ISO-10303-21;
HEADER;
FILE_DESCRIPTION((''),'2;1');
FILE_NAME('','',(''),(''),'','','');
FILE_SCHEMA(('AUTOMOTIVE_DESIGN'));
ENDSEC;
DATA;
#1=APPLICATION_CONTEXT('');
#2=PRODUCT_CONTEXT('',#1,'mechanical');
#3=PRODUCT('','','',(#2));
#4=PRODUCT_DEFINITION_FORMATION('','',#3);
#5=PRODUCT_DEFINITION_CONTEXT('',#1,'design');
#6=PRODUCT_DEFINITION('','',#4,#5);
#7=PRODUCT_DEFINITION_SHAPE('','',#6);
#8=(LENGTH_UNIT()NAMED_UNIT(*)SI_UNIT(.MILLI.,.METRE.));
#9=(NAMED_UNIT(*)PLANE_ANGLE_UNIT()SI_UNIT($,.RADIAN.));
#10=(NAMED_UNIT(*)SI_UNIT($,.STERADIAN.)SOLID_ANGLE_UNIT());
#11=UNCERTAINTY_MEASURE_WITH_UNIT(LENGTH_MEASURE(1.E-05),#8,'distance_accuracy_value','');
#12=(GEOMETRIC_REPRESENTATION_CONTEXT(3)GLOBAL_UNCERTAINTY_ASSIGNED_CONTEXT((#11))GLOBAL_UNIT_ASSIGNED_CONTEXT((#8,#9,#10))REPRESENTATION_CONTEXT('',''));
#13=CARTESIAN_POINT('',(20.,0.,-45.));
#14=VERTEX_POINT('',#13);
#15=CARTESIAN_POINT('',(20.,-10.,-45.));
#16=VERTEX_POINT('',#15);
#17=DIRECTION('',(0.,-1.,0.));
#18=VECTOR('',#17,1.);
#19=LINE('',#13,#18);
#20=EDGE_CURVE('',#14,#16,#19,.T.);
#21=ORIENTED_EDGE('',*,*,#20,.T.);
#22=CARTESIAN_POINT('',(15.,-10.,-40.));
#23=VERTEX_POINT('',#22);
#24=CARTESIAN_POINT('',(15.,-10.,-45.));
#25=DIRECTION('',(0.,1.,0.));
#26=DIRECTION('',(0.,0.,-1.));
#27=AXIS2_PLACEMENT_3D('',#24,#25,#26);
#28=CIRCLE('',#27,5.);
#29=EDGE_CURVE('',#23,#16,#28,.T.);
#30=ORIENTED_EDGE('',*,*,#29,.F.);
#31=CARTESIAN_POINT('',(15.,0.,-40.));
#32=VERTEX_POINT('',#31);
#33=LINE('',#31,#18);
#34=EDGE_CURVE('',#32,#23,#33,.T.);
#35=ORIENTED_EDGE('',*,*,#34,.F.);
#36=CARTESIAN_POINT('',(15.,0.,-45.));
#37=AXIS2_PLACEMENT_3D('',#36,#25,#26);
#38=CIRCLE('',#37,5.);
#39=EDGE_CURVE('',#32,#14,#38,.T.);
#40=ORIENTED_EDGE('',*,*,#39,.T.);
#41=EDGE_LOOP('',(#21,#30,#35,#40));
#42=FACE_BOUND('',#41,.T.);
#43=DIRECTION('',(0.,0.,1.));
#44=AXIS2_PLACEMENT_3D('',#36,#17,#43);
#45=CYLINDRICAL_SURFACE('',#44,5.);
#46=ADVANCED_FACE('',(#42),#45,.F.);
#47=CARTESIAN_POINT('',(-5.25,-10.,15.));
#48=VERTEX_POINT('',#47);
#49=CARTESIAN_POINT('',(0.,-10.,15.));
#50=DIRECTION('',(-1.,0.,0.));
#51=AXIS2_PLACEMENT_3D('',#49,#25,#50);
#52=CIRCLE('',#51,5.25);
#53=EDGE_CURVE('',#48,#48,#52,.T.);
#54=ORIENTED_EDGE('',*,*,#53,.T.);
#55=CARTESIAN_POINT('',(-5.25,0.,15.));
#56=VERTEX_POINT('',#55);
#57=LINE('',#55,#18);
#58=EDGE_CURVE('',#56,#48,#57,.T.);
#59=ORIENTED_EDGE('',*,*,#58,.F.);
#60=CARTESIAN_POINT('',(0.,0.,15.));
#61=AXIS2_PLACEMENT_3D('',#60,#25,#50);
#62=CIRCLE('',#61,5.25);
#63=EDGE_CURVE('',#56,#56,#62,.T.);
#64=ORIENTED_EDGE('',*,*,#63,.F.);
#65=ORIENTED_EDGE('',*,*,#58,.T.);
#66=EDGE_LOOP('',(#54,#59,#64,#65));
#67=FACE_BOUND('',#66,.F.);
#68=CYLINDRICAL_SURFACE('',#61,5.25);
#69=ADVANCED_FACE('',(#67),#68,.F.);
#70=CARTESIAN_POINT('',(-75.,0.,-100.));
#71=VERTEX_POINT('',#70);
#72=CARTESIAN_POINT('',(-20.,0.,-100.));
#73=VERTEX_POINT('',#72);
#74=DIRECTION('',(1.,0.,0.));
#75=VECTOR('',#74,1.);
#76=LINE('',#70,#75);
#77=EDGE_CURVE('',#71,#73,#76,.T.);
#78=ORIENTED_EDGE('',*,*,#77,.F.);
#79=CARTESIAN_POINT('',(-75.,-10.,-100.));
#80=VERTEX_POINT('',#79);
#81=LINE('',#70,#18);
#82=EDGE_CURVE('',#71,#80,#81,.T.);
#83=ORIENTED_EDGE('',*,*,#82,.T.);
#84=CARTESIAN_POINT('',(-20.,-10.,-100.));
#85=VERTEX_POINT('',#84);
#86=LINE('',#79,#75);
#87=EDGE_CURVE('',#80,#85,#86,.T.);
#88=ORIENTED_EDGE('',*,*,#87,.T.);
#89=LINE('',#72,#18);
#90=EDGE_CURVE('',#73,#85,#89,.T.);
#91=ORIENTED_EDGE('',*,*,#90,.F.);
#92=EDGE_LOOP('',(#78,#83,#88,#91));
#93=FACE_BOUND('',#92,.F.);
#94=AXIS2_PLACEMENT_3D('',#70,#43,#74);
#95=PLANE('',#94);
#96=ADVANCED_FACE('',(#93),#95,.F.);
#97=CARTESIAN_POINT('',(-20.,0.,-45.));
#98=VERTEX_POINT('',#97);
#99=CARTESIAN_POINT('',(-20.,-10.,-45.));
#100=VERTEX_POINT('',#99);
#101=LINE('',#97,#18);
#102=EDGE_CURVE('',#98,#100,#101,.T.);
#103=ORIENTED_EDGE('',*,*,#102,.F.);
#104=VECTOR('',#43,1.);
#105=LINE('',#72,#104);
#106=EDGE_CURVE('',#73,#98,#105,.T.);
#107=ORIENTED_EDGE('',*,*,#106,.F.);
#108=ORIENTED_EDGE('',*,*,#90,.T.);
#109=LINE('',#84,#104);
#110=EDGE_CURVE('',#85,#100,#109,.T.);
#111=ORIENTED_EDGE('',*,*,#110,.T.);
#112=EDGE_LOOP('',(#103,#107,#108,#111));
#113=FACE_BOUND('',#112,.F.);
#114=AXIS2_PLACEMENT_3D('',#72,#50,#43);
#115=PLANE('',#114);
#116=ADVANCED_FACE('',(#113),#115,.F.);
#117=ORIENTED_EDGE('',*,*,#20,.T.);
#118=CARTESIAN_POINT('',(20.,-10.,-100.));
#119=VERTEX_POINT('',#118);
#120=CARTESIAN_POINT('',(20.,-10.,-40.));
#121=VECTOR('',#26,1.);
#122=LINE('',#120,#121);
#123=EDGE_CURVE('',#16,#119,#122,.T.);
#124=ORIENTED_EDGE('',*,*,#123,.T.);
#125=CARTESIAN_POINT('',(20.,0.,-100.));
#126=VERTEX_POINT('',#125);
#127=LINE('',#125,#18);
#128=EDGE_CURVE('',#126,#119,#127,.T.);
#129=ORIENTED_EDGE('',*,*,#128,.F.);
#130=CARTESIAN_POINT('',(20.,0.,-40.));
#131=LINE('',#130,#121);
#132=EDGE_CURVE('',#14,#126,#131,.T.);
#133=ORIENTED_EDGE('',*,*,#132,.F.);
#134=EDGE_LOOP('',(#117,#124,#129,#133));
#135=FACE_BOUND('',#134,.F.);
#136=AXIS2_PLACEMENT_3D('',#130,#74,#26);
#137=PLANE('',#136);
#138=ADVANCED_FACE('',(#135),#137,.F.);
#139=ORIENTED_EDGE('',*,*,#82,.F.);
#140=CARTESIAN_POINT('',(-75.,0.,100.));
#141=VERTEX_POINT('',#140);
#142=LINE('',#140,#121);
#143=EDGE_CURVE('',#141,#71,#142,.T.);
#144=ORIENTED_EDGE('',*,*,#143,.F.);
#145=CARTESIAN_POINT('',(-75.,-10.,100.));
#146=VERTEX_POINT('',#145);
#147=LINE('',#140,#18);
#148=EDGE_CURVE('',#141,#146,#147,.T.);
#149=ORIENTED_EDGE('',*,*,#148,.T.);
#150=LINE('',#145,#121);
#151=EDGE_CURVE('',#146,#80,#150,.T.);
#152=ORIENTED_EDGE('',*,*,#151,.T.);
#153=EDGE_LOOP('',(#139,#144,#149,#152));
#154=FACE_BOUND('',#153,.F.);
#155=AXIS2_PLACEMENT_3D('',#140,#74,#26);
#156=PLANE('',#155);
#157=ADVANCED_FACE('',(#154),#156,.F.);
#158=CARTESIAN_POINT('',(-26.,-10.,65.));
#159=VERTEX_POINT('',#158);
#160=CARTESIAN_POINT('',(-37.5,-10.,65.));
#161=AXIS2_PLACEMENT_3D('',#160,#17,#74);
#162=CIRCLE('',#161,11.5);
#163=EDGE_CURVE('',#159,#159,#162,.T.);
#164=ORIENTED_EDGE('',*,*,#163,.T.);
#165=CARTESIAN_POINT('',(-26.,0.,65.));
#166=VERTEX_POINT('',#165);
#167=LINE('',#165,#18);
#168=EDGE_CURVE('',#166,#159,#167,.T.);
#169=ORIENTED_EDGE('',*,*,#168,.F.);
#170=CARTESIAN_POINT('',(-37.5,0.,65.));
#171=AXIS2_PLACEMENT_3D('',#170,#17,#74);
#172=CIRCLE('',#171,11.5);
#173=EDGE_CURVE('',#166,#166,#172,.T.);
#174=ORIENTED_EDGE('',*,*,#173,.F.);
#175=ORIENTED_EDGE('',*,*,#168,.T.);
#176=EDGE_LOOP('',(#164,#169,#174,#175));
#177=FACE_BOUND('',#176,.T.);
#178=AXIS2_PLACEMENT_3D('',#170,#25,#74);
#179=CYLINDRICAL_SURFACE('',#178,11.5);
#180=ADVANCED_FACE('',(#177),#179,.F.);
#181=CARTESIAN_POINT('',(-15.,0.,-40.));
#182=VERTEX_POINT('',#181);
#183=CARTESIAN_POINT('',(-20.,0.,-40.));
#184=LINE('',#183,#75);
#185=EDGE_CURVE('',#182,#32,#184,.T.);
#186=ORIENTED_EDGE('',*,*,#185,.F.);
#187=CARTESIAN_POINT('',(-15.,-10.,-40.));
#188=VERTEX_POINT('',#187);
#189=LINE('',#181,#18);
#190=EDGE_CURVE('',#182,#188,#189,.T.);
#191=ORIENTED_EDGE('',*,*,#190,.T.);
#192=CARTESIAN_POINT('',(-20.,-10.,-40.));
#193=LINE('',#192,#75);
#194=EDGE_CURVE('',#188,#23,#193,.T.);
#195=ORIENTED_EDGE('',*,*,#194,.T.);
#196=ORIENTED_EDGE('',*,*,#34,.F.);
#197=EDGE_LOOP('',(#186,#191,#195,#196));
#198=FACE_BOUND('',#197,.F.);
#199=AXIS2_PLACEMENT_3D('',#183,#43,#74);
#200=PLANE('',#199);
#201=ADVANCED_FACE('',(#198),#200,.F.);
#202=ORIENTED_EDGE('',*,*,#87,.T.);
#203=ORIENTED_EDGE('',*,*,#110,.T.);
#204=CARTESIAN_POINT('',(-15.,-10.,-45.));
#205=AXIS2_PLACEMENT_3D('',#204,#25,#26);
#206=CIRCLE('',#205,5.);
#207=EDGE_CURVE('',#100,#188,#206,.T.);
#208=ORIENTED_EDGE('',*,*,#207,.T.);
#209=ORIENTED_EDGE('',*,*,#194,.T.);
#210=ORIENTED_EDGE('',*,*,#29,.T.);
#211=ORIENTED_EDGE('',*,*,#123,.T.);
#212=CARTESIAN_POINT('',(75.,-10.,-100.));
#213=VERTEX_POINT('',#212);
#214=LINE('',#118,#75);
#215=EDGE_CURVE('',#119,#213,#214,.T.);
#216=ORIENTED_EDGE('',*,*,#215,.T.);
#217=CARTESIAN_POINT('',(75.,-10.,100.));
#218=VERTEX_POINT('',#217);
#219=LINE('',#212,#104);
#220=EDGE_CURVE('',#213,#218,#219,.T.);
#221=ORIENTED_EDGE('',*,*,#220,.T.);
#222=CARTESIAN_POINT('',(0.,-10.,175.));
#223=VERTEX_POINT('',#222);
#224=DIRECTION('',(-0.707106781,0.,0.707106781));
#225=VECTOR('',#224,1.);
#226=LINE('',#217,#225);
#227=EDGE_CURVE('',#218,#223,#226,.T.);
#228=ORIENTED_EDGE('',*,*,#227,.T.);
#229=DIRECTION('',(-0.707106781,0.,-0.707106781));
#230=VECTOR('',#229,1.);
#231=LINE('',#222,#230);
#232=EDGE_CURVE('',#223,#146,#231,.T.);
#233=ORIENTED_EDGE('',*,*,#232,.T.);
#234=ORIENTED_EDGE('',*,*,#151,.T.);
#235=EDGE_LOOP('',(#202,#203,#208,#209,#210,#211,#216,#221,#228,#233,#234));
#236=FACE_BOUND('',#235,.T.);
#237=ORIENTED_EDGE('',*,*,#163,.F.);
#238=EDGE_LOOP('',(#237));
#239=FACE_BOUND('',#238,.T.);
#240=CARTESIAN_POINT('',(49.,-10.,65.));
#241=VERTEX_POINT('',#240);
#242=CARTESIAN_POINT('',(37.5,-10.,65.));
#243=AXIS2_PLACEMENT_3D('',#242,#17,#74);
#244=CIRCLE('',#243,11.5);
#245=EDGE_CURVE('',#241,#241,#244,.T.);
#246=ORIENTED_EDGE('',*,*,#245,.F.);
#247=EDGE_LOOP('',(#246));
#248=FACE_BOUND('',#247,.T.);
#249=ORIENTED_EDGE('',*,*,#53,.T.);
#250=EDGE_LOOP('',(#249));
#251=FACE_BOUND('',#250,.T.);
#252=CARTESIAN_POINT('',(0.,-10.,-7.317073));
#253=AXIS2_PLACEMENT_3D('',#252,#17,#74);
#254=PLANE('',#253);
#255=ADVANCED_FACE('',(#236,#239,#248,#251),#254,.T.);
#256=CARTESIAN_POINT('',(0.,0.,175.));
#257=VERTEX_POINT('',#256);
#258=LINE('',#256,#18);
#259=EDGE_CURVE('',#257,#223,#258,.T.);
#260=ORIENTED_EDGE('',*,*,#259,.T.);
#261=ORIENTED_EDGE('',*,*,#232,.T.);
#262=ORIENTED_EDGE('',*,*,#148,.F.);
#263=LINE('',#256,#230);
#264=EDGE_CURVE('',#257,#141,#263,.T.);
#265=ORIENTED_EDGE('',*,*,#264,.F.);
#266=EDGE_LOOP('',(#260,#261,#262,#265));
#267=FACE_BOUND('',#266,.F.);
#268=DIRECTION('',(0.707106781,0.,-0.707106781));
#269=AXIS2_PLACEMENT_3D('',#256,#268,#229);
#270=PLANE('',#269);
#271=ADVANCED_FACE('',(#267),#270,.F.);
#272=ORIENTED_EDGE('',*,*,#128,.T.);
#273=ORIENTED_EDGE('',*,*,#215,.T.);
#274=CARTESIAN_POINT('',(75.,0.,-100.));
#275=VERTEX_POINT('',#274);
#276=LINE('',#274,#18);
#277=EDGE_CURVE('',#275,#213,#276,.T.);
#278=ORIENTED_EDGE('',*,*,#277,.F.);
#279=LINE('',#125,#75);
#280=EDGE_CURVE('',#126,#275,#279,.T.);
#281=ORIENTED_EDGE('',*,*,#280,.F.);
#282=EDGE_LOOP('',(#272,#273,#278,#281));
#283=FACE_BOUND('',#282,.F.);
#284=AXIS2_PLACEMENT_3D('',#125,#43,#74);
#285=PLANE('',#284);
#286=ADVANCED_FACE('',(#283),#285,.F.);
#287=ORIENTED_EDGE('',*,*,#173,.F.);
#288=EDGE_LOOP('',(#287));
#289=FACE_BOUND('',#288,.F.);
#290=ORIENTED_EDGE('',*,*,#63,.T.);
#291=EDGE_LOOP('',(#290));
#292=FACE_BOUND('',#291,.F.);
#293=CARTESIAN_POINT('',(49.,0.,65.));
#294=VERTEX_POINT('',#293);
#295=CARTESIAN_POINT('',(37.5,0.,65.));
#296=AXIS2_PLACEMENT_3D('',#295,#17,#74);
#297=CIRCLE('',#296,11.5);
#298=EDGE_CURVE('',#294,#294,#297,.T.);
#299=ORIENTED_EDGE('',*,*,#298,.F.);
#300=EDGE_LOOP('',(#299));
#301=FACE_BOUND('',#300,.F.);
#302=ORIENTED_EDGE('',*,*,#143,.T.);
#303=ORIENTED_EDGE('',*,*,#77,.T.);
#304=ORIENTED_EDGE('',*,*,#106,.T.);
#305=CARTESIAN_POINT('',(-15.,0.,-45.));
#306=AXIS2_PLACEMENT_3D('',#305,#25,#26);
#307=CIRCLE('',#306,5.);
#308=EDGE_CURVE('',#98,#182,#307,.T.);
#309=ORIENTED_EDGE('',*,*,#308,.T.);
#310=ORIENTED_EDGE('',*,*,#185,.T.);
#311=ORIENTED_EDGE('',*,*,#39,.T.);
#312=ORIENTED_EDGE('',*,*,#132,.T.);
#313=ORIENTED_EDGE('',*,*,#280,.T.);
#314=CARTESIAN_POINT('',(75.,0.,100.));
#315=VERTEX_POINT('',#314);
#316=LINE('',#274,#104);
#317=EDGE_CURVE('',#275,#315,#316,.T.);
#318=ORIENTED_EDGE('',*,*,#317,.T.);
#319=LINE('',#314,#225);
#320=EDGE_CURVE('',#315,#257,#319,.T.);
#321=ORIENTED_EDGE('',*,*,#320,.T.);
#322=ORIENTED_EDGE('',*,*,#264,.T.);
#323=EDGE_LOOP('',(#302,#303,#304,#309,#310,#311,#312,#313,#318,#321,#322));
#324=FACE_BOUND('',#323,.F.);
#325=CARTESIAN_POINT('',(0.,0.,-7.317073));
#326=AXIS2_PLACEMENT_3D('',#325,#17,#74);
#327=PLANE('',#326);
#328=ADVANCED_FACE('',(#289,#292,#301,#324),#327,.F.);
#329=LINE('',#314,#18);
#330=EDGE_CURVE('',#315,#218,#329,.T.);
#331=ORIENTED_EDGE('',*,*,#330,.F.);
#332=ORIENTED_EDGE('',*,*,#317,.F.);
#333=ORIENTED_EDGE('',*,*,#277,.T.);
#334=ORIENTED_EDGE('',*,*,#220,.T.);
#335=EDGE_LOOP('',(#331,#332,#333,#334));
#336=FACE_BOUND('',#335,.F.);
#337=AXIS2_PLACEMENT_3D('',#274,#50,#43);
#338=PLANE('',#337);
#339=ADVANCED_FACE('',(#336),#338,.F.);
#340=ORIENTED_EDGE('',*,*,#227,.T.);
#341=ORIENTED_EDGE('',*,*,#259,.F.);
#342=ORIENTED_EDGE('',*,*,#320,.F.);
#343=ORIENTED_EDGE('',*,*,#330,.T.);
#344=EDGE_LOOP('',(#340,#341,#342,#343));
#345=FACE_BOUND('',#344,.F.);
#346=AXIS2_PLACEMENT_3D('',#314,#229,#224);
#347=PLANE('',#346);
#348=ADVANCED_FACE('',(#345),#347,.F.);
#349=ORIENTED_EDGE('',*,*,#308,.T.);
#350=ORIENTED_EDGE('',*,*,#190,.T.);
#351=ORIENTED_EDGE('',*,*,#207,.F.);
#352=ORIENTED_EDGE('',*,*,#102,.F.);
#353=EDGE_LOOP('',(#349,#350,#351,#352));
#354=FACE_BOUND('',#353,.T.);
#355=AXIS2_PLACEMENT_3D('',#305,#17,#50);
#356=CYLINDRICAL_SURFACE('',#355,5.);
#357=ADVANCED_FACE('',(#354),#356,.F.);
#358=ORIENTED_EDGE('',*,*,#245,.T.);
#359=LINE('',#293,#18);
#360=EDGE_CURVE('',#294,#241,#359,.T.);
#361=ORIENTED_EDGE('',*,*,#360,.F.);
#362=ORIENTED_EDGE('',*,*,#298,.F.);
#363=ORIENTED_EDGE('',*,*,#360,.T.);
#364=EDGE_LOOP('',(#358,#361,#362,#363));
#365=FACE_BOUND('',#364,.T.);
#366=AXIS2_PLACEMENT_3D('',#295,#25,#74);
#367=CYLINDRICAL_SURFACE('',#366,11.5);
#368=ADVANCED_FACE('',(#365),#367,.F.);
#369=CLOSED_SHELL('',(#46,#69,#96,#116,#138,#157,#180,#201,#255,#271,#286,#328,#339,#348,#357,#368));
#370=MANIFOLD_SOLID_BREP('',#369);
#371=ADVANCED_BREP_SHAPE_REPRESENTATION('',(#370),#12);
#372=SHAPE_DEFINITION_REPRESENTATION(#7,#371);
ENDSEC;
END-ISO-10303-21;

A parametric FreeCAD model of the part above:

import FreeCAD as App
import Part
import Sketcher
Q = App.Units.Quantity


def edges_at(feature, points):
    """Names of the edges that pass closest to the given points."""
    edges = feature.Shape.Edges
    near = lambda p: min(range(len(edges)), key=lambda i: edges[i].distToShape(Part.Vertex(*p))[0])
    return sorted({f"Edge{near(p) + 1}" for p in points})

doc = App.newDocument("Part")
params = doc.addObject("Spreadsheet::Sheet", "Params")
for row, (alias, value) in enumerate([
    ("sketch1_diameter", "23 mm"),
    ("sketch1_width", "55 mm"),
    ("sketch1_width2", "40 mm"),
    ("sketch1_height", "200 mm"),
    ("sketch1_height2", "60 mm"),
    ("pad1_length", "10 mm"),
    ("fillet_radius", "5 mm"),
    ("sketch2_diameter", "10.5 mm"),
], start=1):
    params.set(f"A{row}", alias)
    params.set(f"B{row}", "=" + value)
    params.setAlias(f"B{row}", alias)

body = doc.addObject("PartDesign::Body", "Body")

# Sketch on XZ plane
sketch1 = doc.addObject("Sketcher::SketchObject", "Sketch")
body.addObject(sketch1)
sketch1.AttachmentSupport = (doc.XZ_Plane, [""])
sketch1.MapMode = "FlatFace"
sketch1.addGeometry(Part.LineSegment(App.Vector(75, -100, 0), App.Vector(75, 100, 0)), False)
sketch1.addGeometry(Part.LineSegment(App.Vector(75, 100, 0), App.Vector(0, 175, 0)), False)
sketch1.addGeometry(Part.LineSegment(App.Vector(0, 175, 0), App.Vector(-75, 100, 0)), False)
sketch1.addGeometry(Part.LineSegment(App.Vector(-75, 100, 0), App.Vector(-75, -100, 0)), False)
sketch1.addGeometry(Part.LineSegment(App.Vector(-75, -100, 0), App.Vector(-20, -100, 0)), False)
sketch1.addGeometry(Part.LineSegment(App.Vector(-20, -100, 0), App.Vector(-20, -40, 0)), False)
sketch1.addGeometry(Part.LineSegment(App.Vector(-20, -40, 0), App.Vector(20, -40, 0)), False)
sketch1.addGeometry(Part.LineSegment(App.Vector(20, -40, 0), App.Vector(20, -100, 0)), False)
sketch1.addGeometry(Part.LineSegment(App.Vector(20, -100, 0), App.Vector(75, -100, 0)), False)
sketch1.addGeometry(Part.Circle(App.Vector(-38, 65, 0), App.Vector(0, 0, 1), 12), False)
sketch1.addGeometry(Part.Circle(App.Vector(38, 65, 0), App.Vector(0, 0, 1), 12), False)
sketch1.addConstraint(Sketcher.Constraint("Coincident", 0, 2, 1, 1))
sketch1.addConstraint(Sketcher.Constraint("Coincident", 1, 2, 2, 1))
sketch1.addConstraint(Sketcher.Constraint("Coincident", 2, 2, 3, 1))
sketch1.addConstraint(Sketcher.Constraint("Coincident", 3, 2, 4, 1))
sketch1.addConstraint(Sketcher.Constraint("Coincident", 4, 2, 5, 1))
sketch1.addConstraint(Sketcher.Constraint("Coincident", 5, 2, 6, 1))
sketch1.addConstraint(Sketcher.Constraint("Coincident", 6, 2, 7, 1))
sketch1.addConstraint(Sketcher.Constraint("Coincident", 7, 2, 8, 1))
sketch1.addConstraint(Sketcher.Constraint("Coincident", 8, 2, 0, 1))
sketch1.addConstraint(Sketcher.Constraint("Vertical", 0))
sketch1.addConstraint(Sketcher.Constraint("Vertical", 3))
sketch1.addConstraint(Sketcher.Constraint("Horizontal", 4))
sketch1.addConstraint(Sketcher.Constraint("Vertical", 5))
sketch1.addConstraint(Sketcher.Constraint("Horizontal", 6))
sketch1.addConstraint(Sketcher.Constraint("Vertical", 7))
sketch1.addConstraint(Sketcher.Constraint("Horizontal", 8))
sketch1.addConstraint(Sketcher.Constraint("Equal", 9, 10))
sketch1.addConstraint(Sketcher.Constraint("Symmetric", 0, 2, 3, 2, -1, 1))
sketch1.addConstraint(Sketcher.Constraint("Symmetric", 9, 3, 10, 3, -2))
sketch1.addConstraint(Sketcher.Constraint("Symmetric", 4, 2, 7, 2, -2))
sketch1.addConstraint(Sketcher.Constraint("PointOnObject", 1, 2, -2))
sketch1.addConstraint(Sketcher.Constraint("Perpendicular", 1, 2))
sketch1.addConstraint(Sketcher.Constraint("Horizontal", 0, 2, 2, 2))
sketch1.addConstraint(Sketcher.Constraint("Diameter", 9, Q("23 mm")))
sketch1.addConstraint(Sketcher.Constraint("DistanceX", 4, 1, 4, 2, Q("55 mm")))
sketch1.addConstraint(Sketcher.Constraint("DistanceX", 6, 1, 6, 2, Q("40 mm")))
sketch1.addConstraint(Sketcher.Constraint("DistanceY", 0, 1, 0, 2, Q("200 mm")))
sketch1.addConstraint(Sketcher.Constraint("DistanceY", 5, 1, 5, 2, Q("60 mm")))
sketch1.addConstraint(Sketcher.Constraint("DistanceY", -1, 1, 9, 3, Q("65 mm")))
sketch1.addConstraint(Sketcher.Constraint("DistanceX", 9, 3, 10, 3, Q("75 mm")))
sketch1.setExpression("Constraints[23]", "Params.sketch1_diameter")
sketch1.setExpression("Constraints[24]", "Params.sketch1_width")
sketch1.setExpression("Constraints[25]", "Params.sketch1_width2")
sketch1.setExpression("Constraints[26]", "Params.sketch1_height")
sketch1.setExpression("Constraints[27]", "Params.sketch1_height2")
pad1 = doc.addObject("PartDesign::Pad", "Pad")
body.addObject(pad1)
pad1.Profile = sketch1
pad1.setExpression("Length", "Params.pad1_length")
doc.recompute()

fillet = doc.addObject("PartDesign::Fillet", "Fillet")
body.addObject(fillet)
fillet.Base = (pad1, edges_at(pad1, [(-20, -5, -40), (20, -5, -40)]))
fillet.setExpression("Radius", "Params.fillet_radius")

# Sketch on XZ plane
sketch2 = doc.addObject("Sketcher::SketchObject", "Sketch001")
body.addObject(sketch2)
sketch2.AttachmentSupport = (doc.XZ_Plane, [""])
sketch2.MapMode = "FlatFace"
sketch2.addGeometry(Part.Circle(App.Vector(0, 15, 0), App.Vector(0, 0, 1), 5), False)
sketch2.addConstraint(Sketcher.Constraint("PointOnObject", 0, 3, -2))
sketch2.addConstraint(Sketcher.Constraint("Diameter", 0, Q("10.5 mm")))
sketch2.addConstraint(Sketcher.Constraint("DistanceY", -1, 1, 0, 3, Q("15 mm")))
sketch2.setExpression("Constraints[1]", "Params.sketch2_diameter")
pocket1 = doc.addObject("PartDesign::Pocket", "Pocket")
body.addObject(pocket1)
pocket1.Profile = sketch2
pocket1.Type = "ThroughAll"
pocket1.Reversed = True

doc.recompute()
